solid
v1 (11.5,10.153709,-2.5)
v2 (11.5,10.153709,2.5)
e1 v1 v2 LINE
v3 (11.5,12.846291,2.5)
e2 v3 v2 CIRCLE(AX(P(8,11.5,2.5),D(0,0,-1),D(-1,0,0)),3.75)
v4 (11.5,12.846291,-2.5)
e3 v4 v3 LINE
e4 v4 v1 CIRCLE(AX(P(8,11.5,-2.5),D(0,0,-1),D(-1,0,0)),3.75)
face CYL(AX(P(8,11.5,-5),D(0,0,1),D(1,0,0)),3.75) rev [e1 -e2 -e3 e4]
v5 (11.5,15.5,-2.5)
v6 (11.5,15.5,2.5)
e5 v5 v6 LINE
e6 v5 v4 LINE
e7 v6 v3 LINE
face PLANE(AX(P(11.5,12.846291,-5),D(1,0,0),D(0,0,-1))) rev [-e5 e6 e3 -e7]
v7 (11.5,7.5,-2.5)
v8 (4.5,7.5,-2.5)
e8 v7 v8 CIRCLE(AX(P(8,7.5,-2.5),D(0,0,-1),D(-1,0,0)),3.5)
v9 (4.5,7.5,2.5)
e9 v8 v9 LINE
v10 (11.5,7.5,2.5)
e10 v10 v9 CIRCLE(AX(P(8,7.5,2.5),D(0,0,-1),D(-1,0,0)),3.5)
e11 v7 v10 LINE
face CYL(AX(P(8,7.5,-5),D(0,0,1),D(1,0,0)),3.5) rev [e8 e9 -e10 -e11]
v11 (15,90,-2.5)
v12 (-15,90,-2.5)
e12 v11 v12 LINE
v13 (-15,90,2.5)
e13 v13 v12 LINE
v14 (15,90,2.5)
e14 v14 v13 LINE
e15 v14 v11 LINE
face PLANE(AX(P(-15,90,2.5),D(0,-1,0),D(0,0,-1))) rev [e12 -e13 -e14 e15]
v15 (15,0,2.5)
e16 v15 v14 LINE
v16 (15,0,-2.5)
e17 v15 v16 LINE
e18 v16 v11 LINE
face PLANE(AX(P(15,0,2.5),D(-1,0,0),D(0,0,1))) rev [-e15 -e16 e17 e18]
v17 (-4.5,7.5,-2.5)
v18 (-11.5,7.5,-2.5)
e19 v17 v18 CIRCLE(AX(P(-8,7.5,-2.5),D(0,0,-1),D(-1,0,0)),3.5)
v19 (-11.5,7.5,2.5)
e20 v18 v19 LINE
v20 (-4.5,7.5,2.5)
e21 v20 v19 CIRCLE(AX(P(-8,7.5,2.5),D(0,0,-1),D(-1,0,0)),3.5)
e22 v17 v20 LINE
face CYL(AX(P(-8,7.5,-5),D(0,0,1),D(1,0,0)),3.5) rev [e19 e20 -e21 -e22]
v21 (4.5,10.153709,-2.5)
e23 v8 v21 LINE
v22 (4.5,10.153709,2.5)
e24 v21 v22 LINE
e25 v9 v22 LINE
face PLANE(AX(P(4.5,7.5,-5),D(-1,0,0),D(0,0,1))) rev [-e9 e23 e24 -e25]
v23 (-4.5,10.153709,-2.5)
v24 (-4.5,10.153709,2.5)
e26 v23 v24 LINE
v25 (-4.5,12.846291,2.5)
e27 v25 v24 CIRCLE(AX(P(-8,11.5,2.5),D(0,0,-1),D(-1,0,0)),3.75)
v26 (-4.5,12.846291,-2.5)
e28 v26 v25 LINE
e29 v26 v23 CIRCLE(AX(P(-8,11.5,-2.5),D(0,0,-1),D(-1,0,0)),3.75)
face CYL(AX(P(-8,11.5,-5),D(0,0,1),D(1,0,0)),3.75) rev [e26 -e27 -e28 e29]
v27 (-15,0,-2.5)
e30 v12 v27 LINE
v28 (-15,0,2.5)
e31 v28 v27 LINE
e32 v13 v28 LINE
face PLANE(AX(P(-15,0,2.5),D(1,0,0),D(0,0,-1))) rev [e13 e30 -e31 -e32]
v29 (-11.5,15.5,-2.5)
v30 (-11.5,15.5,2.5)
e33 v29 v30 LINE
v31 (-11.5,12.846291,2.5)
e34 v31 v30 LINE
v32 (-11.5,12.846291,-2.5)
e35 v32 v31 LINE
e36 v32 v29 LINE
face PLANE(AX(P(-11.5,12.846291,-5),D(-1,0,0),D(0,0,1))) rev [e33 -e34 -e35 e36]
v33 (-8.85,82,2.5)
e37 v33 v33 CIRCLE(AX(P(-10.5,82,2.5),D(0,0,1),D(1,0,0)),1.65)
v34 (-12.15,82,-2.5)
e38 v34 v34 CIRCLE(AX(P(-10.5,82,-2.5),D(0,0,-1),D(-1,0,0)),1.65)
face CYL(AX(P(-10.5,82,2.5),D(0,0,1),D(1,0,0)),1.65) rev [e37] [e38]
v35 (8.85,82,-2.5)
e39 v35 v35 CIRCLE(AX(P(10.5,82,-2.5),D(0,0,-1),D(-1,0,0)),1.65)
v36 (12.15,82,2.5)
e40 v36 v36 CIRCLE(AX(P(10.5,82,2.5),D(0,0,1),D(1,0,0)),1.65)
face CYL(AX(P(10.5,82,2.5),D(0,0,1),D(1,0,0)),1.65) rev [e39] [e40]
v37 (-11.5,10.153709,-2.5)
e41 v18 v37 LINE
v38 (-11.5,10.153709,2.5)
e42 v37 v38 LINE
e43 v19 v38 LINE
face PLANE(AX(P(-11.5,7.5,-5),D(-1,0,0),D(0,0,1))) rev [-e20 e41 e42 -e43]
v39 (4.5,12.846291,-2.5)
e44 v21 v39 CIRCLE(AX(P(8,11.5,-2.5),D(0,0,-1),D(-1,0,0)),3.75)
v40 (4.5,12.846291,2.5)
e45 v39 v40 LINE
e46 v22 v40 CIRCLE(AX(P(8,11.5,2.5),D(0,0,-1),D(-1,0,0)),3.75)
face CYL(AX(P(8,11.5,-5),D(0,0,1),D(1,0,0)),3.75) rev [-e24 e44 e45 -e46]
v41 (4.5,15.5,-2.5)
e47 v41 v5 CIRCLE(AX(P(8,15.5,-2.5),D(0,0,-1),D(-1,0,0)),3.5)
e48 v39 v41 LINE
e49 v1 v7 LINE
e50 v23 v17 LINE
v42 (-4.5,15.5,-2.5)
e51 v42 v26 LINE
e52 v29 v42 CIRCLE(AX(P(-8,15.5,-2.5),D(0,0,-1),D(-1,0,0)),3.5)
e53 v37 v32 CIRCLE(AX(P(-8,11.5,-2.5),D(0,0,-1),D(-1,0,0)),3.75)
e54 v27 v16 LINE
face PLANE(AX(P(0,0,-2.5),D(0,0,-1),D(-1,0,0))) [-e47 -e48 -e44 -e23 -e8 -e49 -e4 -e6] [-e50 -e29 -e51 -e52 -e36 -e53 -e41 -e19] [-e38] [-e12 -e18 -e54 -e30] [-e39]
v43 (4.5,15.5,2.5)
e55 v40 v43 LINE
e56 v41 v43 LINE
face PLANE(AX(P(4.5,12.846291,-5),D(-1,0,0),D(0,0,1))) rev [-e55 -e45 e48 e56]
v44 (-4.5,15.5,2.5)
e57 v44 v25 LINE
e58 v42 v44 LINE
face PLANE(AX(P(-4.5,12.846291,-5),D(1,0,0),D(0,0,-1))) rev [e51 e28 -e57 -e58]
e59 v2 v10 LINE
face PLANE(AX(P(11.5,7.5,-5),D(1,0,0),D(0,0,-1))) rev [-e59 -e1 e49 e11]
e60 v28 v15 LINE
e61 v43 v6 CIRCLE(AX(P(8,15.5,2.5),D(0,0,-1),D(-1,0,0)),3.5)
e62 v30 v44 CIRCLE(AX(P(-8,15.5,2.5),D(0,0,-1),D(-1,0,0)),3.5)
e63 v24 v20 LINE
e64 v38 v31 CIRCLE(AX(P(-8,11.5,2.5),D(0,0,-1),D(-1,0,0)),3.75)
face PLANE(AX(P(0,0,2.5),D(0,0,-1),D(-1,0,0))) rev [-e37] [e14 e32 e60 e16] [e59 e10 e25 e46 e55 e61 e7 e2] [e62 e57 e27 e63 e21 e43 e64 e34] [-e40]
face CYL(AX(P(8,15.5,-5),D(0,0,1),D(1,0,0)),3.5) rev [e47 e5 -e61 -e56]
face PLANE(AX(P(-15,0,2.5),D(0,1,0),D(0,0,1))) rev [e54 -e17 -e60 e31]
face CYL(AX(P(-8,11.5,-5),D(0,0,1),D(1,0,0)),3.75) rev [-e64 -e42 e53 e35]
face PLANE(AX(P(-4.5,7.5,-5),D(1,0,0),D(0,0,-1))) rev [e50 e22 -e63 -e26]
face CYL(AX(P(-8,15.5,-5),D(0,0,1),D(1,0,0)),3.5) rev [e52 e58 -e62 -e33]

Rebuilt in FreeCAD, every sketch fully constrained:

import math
import FreeCAD as App
import Part
import Sketcher
from FreeCAD import Vector
Q = App.Units.Quantity


def add_polygon(sketch, points):
    """Adds a closed chain of lines whose ends are joined by coincident constraints."""
    first, n = sketch.GeometryCount, len(points)
    for a, b in zip(points, points[1:] + points[:1]):
        sketch.addGeometry(Part.LineSegment(App.Vector(*a, 0), App.Vector(*b, 0)), False)
    for i in range(n):
        sketch.addConstraint(Sketcher.Constraint("Coincident", first + i, 2, first + (i + 1) % n, 1))

doc = App.newDocument("Part")
body = doc.addObject("PartDesign::Body", "Body")

sketch1 = doc.addObject("Sketcher::SketchObject", "Sketch")
body.addObject(sketch1)
sketch1.AttachmentSupport = (doc.XY_Plane, [""])
sketch1.MapMode = "FlatFace"
add_polygon(sketch1, [(-15, 90), (-15, 0), (15, 0), (15, 90)])
sketch1.addConstraint([
    Sketcher.Constraint("Vertical", 0),
    Sketcher.Constraint("Horizontal", 1),
    Sketcher.Constraint("Vertical", 2),
    Sketcher.Constraint("Horizontal", 3),
    Sketcher.Constraint("Symmetric", 0, 2, 1, 2, -1, 1),
    Sketcher.Constraint("DistanceX", 1, 1, 1, 2, Q("30 mm")),
    Sketcher.Constraint("DistanceY", 0, 2, 0, 1, Q("90 mm")),
])
pad1 = doc.addObject("PartDesign::Pad", "Pad")
body.addObject(pad1)
pad1.Profile = sketch1
pad1.Length = 5
pad1.Midplane = True

sketch2 = doc.addObject("Sketcher::SketchObject", "Sketch001")
body.addObject(sketch2)
sketch2.AttachmentSupport = (doc.XY_Plane, [""])
sketch2.MapMode = "FlatFace"
sketch2.addGeometry([
    Part.LineSegment(Vector(-11.5, 15.5, 0), Vector(-11.5, 12.846291, 0)),
    Part.ArcOfCircle(Part.Circle(Vector(-8, 11.5, 0), Vector(0, 0, 1), 3.75), math.radians(158.96053), math.radians(201.03947)),
    Part.LineSegment(Vector(-11.5, 10.153709, 0), Vector(-11.5, 7.5, 0)),
    Part.ArcOfCircle(Part.Circle(Vector(-8, 7.5, 0), Vector(0, 0, 1), 3.5), math.radians(180), math.radians(360)),
    Part.LineSegment(Vector(-4.5, 7.5, 0), Vector(-4.5, 10.153709, 0)),
    Part.ArcOfCircle(Part.Circle(Vector(-8, 11.5, 0), Vector(0, 0, 1), 3.75), math.radians(-21.03947), math.radians(21.03947)),
    Part.LineSegment(Vector(-4.5, 12.846291, 0), Vector(-4.5, 15.5, 0)),
    Part.ArcOfCircle(Part.Circle(Vector(-8, 15.5, 0), Vector(0, 0, 1), 3.5), math.radians(0), math.radians(180)),
    Part.LineSegment(Vector(4.5, 15.5, 0), Vector(4.5, 12.846291, 0)),
    Part.ArcOfCircle(Part.Circle(Vector(8, 11.5, 0), Vector(0, 0, 1), 3.75), math.radians(158.96053), math.radians(201.03947)),
    Part.LineSegment(Vector(4.5, 10.153709, 0), Vector(4.5, 7.5, 0)),
    Part.ArcOfCircle(Part.Circle(Vector(8, 7.5, 0), Vector(0, 0, 1), 3.5), math.radians(180), math.radians(360)),
    Part.LineSegment(Vector(11.5, 7.5, 0), Vector(11.5, 10.153709, 0)),
    Part.ArcOfCircle(Part.Circle(Vector(8, 11.5, 0), Vector(0, 0, 1), 3.75), math.radians(-21.03947), math.radians(21.03947)),
    Part.LineSegment(Vector(11.5, 12.846291, 0), Vector(11.5, 15.5, 0)),
    Part.ArcOfCircle(Part.Circle(Vector(8, 15.5, 0), Vector(0, 0, 1), 3.5), math.radians(0), math.radians(180)),
], False)
sketch2.addConstraint([
    Sketcher.Constraint("Coincident", 0, 2, 1, 1),
    Sketcher.Constraint("Coincident", 1, 2, 2, 1),
    Sketcher.Constraint("Tangent", 2, 2, 3, 1),
    Sketcher.Constraint("Tangent", 3, 2, 4, 1),
    Sketcher.Constraint("Coincident", 4, 2, 5, 1),
    Sketcher.Constraint("Coincident", 5, 2, 6, 1),
    Sketcher.Constraint("Tangent", 6, 2, 7, 1),
    Sketcher.Constraint("Tangent", 7, 2, 0, 1),
    Sketcher.Constraint("Coincident", 8, 2, 9, 1),
    Sketcher.Constraint("Coincident", 9, 2, 10, 1),
    Sketcher.Constraint("Tangent", 10, 2, 11, 1),
    Sketcher.Constraint("Tangent", 11, 2, 12, 1),
    Sketcher.Constraint("Coincident", 12, 2, 13, 1),
    Sketcher.Constraint("Coincident", 13, 2, 14, 1),
    Sketcher.Constraint("Tangent", 14, 2, 15, 1),
    Sketcher.Constraint("Tangent", 15, 2, 8, 1),
    Sketcher.Constraint("Vertical", 0),
    Sketcher.Constraint("Vertical", 2),
    Sketcher.Constraint("Vertical", 4),
    Sketcher.Constraint("Vertical", 6),
    Sketcher.Constraint("Vertical", 8),
    Sketcher.Constraint("Vertical", 10),
    Sketcher.Constraint("Vertical", 12),
    Sketcher.Constraint("Vertical", 14),
    Sketcher.Constraint("Coincident", 5, 3, 1, 3),
    Sketcher.Constraint("Coincident", 13, 3, 9, 3),
    Sketcher.Constraint("Equal", 1, 5),
    Sketcher.Constraint("Equal", 3, 7),
    Sketcher.Constraint("Equal", 5, 9),
    Sketcher.Constraint("Equal", 7, 11),
    Sketcher.Constraint("Equal", 9, 13),
    Sketcher.Constraint("Equal", 11, 15),
    Sketcher.Constraint("Symmetric", 1, 3, 9, 3, -2),
    Sketcher.Constraint("Symmetric", 3, 3, 11, 3, -2),
    Sketcher.Constraint("Symmetric", 7, 3, 15, 3, -2),
    Sketcher.Constraint("Horizontal", 1, 2, 4, 2),
    Sketcher.Constraint("Horizontal", 0, 2, 5, 2),
    Sketcher.Constraint("Equal", 0, 2),
    Sketcher.Constraint("Radius", 3, Q("3.5 mm")),
    Sketcher.Constraint("Radius", 1, Q("3.75 mm")),
    Sketcher.Constraint("DistanceX", 1, 3, -1, 1, Q("8 mm")),
    Sketcher.Constraint("DistanceY", 3, 3, 1, 3, Q("4 mm")),
    Sketcher.Constraint("DistanceY", -1, 1, 1, 3, Q("11.5 mm")),
])
pocket1 = doc.addObject("PartDesign::Pocket", "Pocket")
body.addObject(pocket1)
pocket1.Profile = sketch2
pocket1.Length = 10
pocket1.Midplane = True

sketch3 = doc.addObject("Sketcher::SketchObject", "Sketch002")
body.addObject(sketch3)
sketch3.AttachmentSupport = (doc.XY_Plane, [""])
sketch3.MapMode = "FlatFace"
sketch3.AttachmentOffset = App.Placement(Vector(0, 0, 2.5), App.Rotation())
sketch3.addGeometry([
    Part.Circle(Vector(-10.5, 82, 0), Vector(0, 0, 1), 1.65),
    Part.Circle(Vector(10.5, 82, 0), Vector(0, 0, 1), 1.65),
], False)
sketch3.addConstraint([
    Sketcher.Constraint("Equal", 0, 1),
    Sketcher.Constraint("Symmetric", 0, 3, 1, 3, -2),
    Sketcher.Constraint("Diameter", 0, Q("3.3 mm")),
    Sketcher.Constraint("DistanceY", -1, 1, 0, 3, Q("82 mm")),
    Sketcher.Constraint("DistanceX", 0, 3, 1, 3, Q("21 mm")),
])
doc.recompute()
hole = doc.addObject("PartDesign::Hole", "Hole")
body.addObject(hole)
hole.Profile = sketch3
hole.ThreadType = "None"
hole.Diameter = 3.3
hole.DepthType = "Dimension"
hole.Depth = 11.5
hole.DrillPoint = "Angled"
hole.DrillPointAngle = 118

doc.recompute()
